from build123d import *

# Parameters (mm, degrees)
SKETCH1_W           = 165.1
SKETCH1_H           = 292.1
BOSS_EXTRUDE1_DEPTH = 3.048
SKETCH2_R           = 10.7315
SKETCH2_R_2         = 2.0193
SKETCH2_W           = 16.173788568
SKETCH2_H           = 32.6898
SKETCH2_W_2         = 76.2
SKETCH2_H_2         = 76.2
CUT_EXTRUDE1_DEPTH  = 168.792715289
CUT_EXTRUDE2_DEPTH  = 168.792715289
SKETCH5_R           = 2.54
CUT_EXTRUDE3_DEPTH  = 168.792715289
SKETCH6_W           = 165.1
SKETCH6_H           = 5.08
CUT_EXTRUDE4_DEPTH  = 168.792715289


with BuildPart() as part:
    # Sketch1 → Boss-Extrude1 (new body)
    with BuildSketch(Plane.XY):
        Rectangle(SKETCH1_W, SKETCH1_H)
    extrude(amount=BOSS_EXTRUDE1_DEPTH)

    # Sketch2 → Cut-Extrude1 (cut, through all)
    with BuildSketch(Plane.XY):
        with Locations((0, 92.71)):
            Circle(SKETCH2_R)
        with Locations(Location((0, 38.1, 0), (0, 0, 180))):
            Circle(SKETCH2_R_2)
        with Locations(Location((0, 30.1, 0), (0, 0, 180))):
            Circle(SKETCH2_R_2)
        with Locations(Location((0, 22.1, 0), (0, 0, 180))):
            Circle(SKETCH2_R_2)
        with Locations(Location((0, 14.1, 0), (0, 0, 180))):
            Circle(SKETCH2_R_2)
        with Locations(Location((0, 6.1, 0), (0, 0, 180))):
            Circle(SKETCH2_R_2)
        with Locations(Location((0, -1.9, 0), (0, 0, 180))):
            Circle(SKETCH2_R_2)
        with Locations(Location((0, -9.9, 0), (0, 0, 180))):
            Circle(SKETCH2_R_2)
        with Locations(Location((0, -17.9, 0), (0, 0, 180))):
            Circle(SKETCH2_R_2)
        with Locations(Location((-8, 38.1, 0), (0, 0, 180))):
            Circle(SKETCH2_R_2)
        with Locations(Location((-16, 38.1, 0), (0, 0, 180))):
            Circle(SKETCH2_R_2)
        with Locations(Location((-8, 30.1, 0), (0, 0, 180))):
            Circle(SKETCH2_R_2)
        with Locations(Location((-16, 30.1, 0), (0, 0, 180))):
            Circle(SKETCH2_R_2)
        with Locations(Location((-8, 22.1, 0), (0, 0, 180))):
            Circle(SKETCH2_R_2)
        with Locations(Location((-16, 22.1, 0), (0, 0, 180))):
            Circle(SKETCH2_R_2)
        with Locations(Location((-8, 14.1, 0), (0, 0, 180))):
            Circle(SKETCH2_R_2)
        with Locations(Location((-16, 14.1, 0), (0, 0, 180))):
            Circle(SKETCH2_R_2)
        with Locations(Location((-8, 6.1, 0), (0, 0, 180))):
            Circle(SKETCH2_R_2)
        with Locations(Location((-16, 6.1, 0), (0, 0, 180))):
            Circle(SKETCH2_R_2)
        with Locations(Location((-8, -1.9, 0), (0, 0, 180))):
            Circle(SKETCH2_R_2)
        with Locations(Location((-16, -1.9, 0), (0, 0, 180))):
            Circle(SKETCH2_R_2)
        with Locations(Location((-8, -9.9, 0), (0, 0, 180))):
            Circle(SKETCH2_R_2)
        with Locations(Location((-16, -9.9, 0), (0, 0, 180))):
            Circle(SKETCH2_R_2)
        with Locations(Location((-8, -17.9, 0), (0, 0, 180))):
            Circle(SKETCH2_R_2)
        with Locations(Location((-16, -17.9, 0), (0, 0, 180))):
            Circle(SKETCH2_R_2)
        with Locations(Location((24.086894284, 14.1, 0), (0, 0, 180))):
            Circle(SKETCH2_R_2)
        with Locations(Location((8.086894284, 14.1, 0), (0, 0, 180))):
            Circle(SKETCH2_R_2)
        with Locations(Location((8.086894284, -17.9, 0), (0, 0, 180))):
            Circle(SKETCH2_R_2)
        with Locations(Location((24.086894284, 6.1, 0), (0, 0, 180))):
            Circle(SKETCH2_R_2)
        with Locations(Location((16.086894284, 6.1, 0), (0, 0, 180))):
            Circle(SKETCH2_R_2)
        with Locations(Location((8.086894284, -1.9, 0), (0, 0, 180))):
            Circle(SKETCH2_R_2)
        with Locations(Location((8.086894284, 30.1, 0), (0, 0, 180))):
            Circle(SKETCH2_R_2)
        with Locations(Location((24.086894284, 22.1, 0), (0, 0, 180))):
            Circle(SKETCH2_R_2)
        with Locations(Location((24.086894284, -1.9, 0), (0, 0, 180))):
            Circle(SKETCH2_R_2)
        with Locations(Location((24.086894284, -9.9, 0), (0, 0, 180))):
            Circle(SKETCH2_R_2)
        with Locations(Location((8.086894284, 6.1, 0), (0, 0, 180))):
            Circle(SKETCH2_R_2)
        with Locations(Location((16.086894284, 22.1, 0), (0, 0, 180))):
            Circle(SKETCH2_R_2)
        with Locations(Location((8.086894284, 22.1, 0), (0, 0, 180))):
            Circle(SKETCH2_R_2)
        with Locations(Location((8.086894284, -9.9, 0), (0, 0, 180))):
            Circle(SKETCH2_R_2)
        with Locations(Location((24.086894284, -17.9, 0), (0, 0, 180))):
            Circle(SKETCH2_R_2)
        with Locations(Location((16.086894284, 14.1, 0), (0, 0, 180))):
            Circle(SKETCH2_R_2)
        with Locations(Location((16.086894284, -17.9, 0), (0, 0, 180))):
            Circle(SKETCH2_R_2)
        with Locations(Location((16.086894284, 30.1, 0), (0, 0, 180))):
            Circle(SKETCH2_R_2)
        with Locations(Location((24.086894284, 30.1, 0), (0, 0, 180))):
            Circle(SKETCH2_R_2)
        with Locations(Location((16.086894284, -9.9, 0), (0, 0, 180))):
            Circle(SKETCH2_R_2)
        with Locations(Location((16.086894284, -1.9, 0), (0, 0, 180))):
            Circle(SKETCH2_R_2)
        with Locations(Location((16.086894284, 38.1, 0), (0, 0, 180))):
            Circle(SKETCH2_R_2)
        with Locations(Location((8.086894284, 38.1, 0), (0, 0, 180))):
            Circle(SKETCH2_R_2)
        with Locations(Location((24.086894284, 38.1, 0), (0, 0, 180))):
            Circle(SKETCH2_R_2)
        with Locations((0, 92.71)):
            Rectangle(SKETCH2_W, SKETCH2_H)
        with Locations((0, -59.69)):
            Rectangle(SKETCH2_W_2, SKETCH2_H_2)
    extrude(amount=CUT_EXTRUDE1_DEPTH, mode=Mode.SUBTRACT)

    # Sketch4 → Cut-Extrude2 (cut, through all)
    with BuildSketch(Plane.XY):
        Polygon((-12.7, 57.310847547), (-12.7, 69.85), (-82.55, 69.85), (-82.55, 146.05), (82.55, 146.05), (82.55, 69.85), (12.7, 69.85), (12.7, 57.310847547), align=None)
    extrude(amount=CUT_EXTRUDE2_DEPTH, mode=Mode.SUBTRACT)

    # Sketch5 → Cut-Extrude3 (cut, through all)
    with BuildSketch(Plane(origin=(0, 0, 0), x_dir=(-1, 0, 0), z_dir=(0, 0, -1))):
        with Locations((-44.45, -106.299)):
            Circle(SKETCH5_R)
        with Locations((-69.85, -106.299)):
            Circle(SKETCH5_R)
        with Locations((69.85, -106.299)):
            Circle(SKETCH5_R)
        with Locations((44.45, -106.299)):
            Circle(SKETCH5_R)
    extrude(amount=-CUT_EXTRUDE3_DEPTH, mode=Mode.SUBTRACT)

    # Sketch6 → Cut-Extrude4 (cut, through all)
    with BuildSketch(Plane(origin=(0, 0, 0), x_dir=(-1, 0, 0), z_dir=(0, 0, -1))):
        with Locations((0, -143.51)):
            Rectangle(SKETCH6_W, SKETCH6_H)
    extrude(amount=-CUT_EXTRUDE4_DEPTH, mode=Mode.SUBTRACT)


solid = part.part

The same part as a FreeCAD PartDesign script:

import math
import FreeCAD as App
import Part
import Sketcher

V = App.Vector
Q = App.Units.Quantity

doc = App.newDocument("Part")
body = doc.addObject("PartDesign::Body", "Body")

sketch1 = body.newObject("Sketcher::SketchObject", "Sketch")
sketch1.AttachmentSupport = (doc.getObject("XY_Plane"), [""])
sketch1.MapMode = "FlatFace"
sketch1.addGeometry([
    Part.LineSegment(V(-82.55, 146.05, 0), V(-82.55, -146.05, 0)),
    Part.LineSegment(V(-82.55, -146.05, 0), V(82.55, -146.05, 0)),
    Part.LineSegment(V(82.55, -146.05, 0), V(82.55, 146.05, 0)),
    Part.LineSegment(V(82.55, 146.05, 0), V(-82.55, 146.05, 0)),
], False)
sketch1.addConstraint([
    Sketcher.Constraint("Coincident", 0, 2, 1, 1),
    Sketcher.Constraint("Coincident", 1, 2, 2, 1),
    Sketcher.Constraint("Coincident", 2, 2, 3, 1),
    Sketcher.Constraint("Coincident", 3, 2, 0, 1),
    Sketcher.Constraint("Vertical", 0),
    Sketcher.Constraint("Horizontal", 1),
    Sketcher.Constraint("Vertical", 2),
    Sketcher.Constraint("Horizontal", 3),
    Sketcher.Constraint("Symmetric", 0, 2, 2, 2, -1, 1),
    Sketcher.Constraint("DistanceX", 1, 1, 1, 2, Q("6.5 in")),
    Sketcher.Constraint("DistanceY", 0, 2, 0, 1, Q("11.5 in")),
])
pad1 = body.newObject("PartDesign::Pad", "Pad")
pad1.Profile = sketch1
pad1.Length = Q("0.12 in")

sketch2 = body.newObject("Sketcher::SketchObject", "Sketch001")
sketch2.AttachmentSupport = (doc.getObject("XY_Plane"), [""])
sketch2.MapMode = "FlatFace"
sketch2.addGeometry([
    Part.ArcOfCircle(Part.Circle(V(0, 92.71, 0), V(0, 0, 1), 10.7315), math.radians(-41.099767), math.radians(41.099767)),
    Part.LineSegment(V(8.086894, 99.76459, 0), V(8.086894, 109.0549, 0)),
    Part.LineSegment(V(8.086894, 109.0549, 0), V(-8.086894, 109.0549, 0)),
    Part.LineSegment(V(-8.086894, 109.0549, 0), V(-8.086894, 99.76459, 0)),
    Part.ArcOfCircle(Part.Circle(V(0, 92.71, 0), V(0, 0, 1), 10.7315), math.radians(138.900233), math.radians(221.099767)),
    Part.LineSegment(V(-8.086894, 85.65541, 0), V(-8.086894, 76.3651, 0)),
    Part.LineSegment(V(-8.086894, 76.3651, 0), V(8.086894, 76.3651, 0)),
    Part.LineSegment(V(8.086894, 76.3651, 0), V(8.086894, 85.65541, 0)),
    Part.Circle(V(0, 38.1, 0), V(0, 0, 1), 2.0193),
    Part.Circle(V(0, 30.1, 0), V(0, 0, 1), 2.0193),
    Part.Circle(V(0, 22.1, 0), V(0, 0, 1), 2.0193),
    Part.Circle(V(0, 14.1, 0), V(0, 0, 1), 2.0193),
    Part.Circle(V(0, 6.1, 0), V(0, 0, 1), 2.0193),
    Part.Circle(V(0, -1.9, 0), V(0, 0, 1), 2.0193),
    Part.Circle(V(0, -9.9, 0), V(0, 0, 1), 2.0193),
    Part.Circle(V(0, -17.9, 0), V(0, 0, 1), 2.0193),
    Part.Circle(V(-8, 38.1, 0), V(0, 0, 1), 2.0193),
    Part.Circle(V(-16, 38.1, 0), V(0, 0, 1), 2.0193),
    Part.Circle(V(-8, 30.1, 0), V(0, 0, 1), 2.0193),
    Part.Circle(V(-16, 30.1, 0), V(0, 0, 1), 2.0193),
    Part.Circle(V(-8, 22.1, 0), V(0, 0, 1), 2.0193),
    Part.Circle(V(-16, 22.1, 0), V(0, 0, 1), 2.0193),
    Part.Circle(V(-8, 14.1, 0), V(0, 0, 1), 2.0193),
    Part.Circle(V(-16, 14.1, 0), V(0, 0, 1), 2.0193),
    Part.Circle(V(-8, 6.1, 0), V(0, 0, 1), 2.0193),
    Part.Circle(V(-16, 6.1, 0), V(0, 0, 1), 2.0193),
    Part.Circle(V(-8, -1.9, 0), V(0, 0, 1), 2.0193),
    Part.Circle(V(-16, -1.9, 0), V(0, 0, 1), 2.0193),
    Part.Circle(V(-8, -9.9, 0), V(0, 0, 1), 2.0193),
    Part.Circle(V(-16, -9.9, 0), V(0, 0, 1), 2.0193),
    Part.Circle(V(-8, -17.9, 0), V(0, 0, 1), 2.0193),
    Part.Circle(V(-16, -17.9, 0), V(0, 0, 1), 2.0193),
    Part.Circle(V(24.086894, 14.1, 0), V(0, 0, 1), 2.0193),
    Part.Circle(V(8.086894, 14.1, 0), V(0, 0, 1), 2.0193),
    Part.Circle(V(8.086894, -17.9, 0), V(0, 0, 1), 2.0193),
    Part.Circle(V(24.086894, 6.1, 0), V(0, 0, 1), 2.0193),
    Part.Circle(V(16.086894, 6.1, 0), V(0, 0, 1), 2.0193),
    Part.Circle(V(8.086894, -1.9, 0), V(0, 0, 1), 2.0193),
    Part.Circle(V(8.086894, 30.1, 0), V(0, 0, 1), 2.0193),
    Part.Circle(V(24.086894, 22.1, 0), V(0, 0, 1), 2.0193),
    Part.Circle(V(24.086894, -1.9, 0), V(0, 0, 1), 2.0193),
    Part.Circle(V(24.086894, -9.9, 0), V(0, 0, 1), 2.0193),
    Part.Circle(V(8.086894, 6.1, 0), V(0, 0, 1), 2.0193),
    Part.Circle(V(16.086894, 22.1, 0), V(0, 0, 1), 2.0193),
    Part.Circle(V(8.086894, 22.1, 0), V(0, 0, 1), 2.0193),
    Part.Circle(V(8.086894, -9.9, 0), V(0, 0, 1), 2.0193),
    Part.Circle(V(24.086894, -17.9, 0), V(0, 0, 1), 2.0193),
    Part.Circle(V(16.086894, 14.1, 0), V(0, 0, 1), 2.0193),
    Part.Circle(V(16.086894, -17.9, 0), V(0, 0, 1), 2.0193),
    Part.Circle(V(16.086894, 30.1, 0), V(0, 0, 1), 2.0193),
    Part.Circle(V(24.086894, 30.1, 0), V(0, 0, 1), 2.0193),
    Part.Circle(V(16.086894, -9.9, 0), V(0, 0, 1), 2.0193),
    Part.Circle(V(16.086894, -1.9, 0), V(0, 0, 1), 2.0193),
    Part.Circle(V(16.086894, 38.1, 0), V(0, 0, 1), 2.0193),
    Part.Circle(V(8.086894, 38.1, 0), V(0, 0, 1), 2.0193),
    Part.Circle(V(24.086894, 38.1, 0), V(0, 0, 1), 2.0193),
    Part.LineSegment(V(-38.1, -21.59, 0), V(-38.1, -97.79, 0)),
    Part.LineSegment(V(-38.1, -97.79, 0), V(38.1, -97.79, 0)),
    Part.LineSegment(V(38.1, -97.79, 0), V(38.1, -21.59, 0)),
    Part.LineSegment(V(38.1, -21.59, 0), V(-38.1, -21.59, 0)),
], False)
sketch2.addConstraint([
    Sketcher.Constraint("Coincident", 0, 2, 1, 1),
    Sketcher.Constraint("Coincident", 1, 2, 2, 1),
    Sketcher.Constraint("Coincident", 2, 2, 3, 1),
    Sketcher.Constraint("Coincident", 3, 2, 4, 1),
    Sketcher.Constraint("Coincident", 4, 2, 5, 1),
    Sketcher.Constraint("Coincident", 5, 2, 6, 1),
    Sketcher.Constraint("Coincident", 6, 2, 7, 1),
    Sketcher.Constraint("Coincident", 7, 2, 0, 1),
    Sketcher.Constraint("Coincident", 56, 2, 57, 1),
    Sketcher.Constraint("Coincident", 57, 2, 58, 1),
    Sketcher.Constraint("Coincident", 58, 2, 59, 1),
    Sketcher.Constraint("Coincident", 59, 2, 56, 1),
    Sketcher.Constraint("Vertical", 1),
    Sketcher.Constraint("Horizontal", 2),
    Sketcher.Constraint("Vertical", 3),
    Sketcher.Constraint("Vertical", 5),
    Sketcher.Constraint("Horizontal", 6),
    Sketcher.Constraint("Vertical", 7),
    Sketcher.Constraint("Vertical", 56),
    Sketcher.Constraint("Horizontal", 57),
    Sketcher.Constraint("Vertical", 58),
    Sketcher.Constraint("Horizontal", 59),
    Sketcher.Constraint("Coincident", 4, 3, 0, 3),
    Sketcher.Constraint("Equal", 0, 4),
    Sketcher.Constraint("Equal", 8, 9),
    Sketcher.Constraint("Equal", 9, 10),
    Sketcher.Constraint("Equal", 10, 11),
    Sketcher.Constraint("Equal", 11, 12),
    Sketcher.Constraint("Equal", 12, 13),
    Sketcher.Constraint("Equal", 13, 14),
    Sketcher.Constraint("Equal", 14, 15),
    Sketcher.Constraint("Equal", 15, 16),
    Sketcher.Constraint("Equal", 16, 17),
    Sketcher.Constraint("Equal", 17, 18),
    Sketcher.Constraint("Equal", 18, 19),
    Sketcher.Constraint("Equal", 19, 20),
    Sketcher.Constraint("Equal", 20, 21),
    Sketcher.Constraint("Equal", 21, 22),
    Sketcher.Constraint("Equal", 22, 23),
    Sketcher.Constraint("Equal", 23, 24),
    Sketcher.Constraint("Equal", 24, 25),
    Sketcher.Constraint("Equal", 25, 26),
    Sketcher.Constraint("Equal", 26, 27),
    Sketcher.Constraint("Equal", 27, 28),
    Sketcher.Constraint("Equal", 28, 29),
    Sketcher.Constraint("Equal", 29, 30),
    Sketcher.Constraint("Equal", 30, 31),
    Sketcher.Constraint("Equal", 31, 32),
    Sketcher.Constraint("Equal", 32, 33),
    Sketcher.Constraint("Equal", 33, 34),
    Sketcher.Constraint("Equal", 34, 35),
    Sketcher.Constraint("Equal", 35, 36),
    Sketcher.Constraint("Equal", 36, 37),
    Sketcher.Constraint("Equal", 37, 38),
    Sketcher.Constraint("Equal", 38, 39),
    Sketcher.Constraint("Equal", 39, 40),
    Sketcher.Constraint("Equal", 40, 41),
    Sketcher.Constraint("Equal", 41, 42),
    Sketcher.Constraint("Equal", 42, 43),
    Sketcher.Constraint("Equal", 43, 44),
    Sketcher.Constraint("Equal", 44, 45),
    Sketcher.Constraint("Equal", 45, 46),
    Sketcher.Constraint("Equal", 46, 47),
    Sketcher.Constraint("Equal", 47, 48),
    Sketcher.Constraint("Equal", 48, 49),
    Sketcher.Constraint("Equal", 49, 50),
    Sketcher.Constraint("Equal", 50, 51),
    Sketcher.Constraint("Equal", 51, 52),
    Sketcher.Constraint("Equal", 52, 53),
    Sketcher.Constraint("Equal", 53, 54),
    Sketcher.Constraint("Equal", 54, 55),
    Sketcher.Constraint("Symmetric", 0, 2, 3, 2, -2),
    Sketcher.Constraint("PointOnObject", 8, 3, -2),
    Sketcher.Constraint("PointOnObject", 9, 3, -2),
    Sketcher.Constraint("PointOnObject", 10, 3, -2),
    Sketcher.Constraint("PointOnObject", 11, 3, -2),
    Sketcher.Constraint("PointOnObject", 12, 3, -2),
    Sketcher.Constraint("PointOnObject", 13, 3, -2),
    Sketcher.Constraint("PointOnObject", 14, 3, -2),
    Sketcher.Constraint("PointOnObject", 15, 3, -2),
    Sketcher.Constraint("Horizontal", 8, 3, 16, 3),
    Sketcher.Constraint("Horizontal", 16, 3, 17, 3),
    Sketcher.Constraint("Horizontal", 9, 3, 18, 3),
    Sketcher.Constraint("Horizontal", 18, 3, 19, 3),
    Sketcher.Constraint("Horizontal", 10, 3, 20, 3),
    Sketcher.Constraint("Horizontal", 20, 3, 21, 3),
    Sketcher.Constraint("Horizontal", 11, 3, 22, 3),
    Sketcher.Constraint("Horizontal", 22, 3, 23, 3),
    Sketcher.Constraint("Horizontal", 12, 3, 24, 3),
    Sketcher.Constraint("Horizontal", 24, 3, 25, 3),
    Sketcher.Constraint("Horizontal", 13, 3, 26, 3),
    Sketcher.Constraint("Horizontal", 26, 3, 27, 3),
    Sketcher.Constraint("Horizontal", 14, 3, 28, 3),
    Sketcher.Constraint("Horizontal", 28, 3, 29, 3),
    Sketcher.Constraint("Horizontal", 15, 3, 30, 3),
    Sketcher.Constraint("Horizontal", 30, 3, 31, 3),
    Sketcher.Constraint("Horizontal", 23, 3, 32, 3),
    Sketcher.Constraint("Horizontal", 32, 3, 33, 3),
    Sketcher.Constraint("Horizontal", 31, 3, 34, 3),
    Sketcher.Constraint("Horizontal", 25, 3, 35, 3),
    Sketcher.Constraint("Horizontal", 35, 3, 36, 3),
    Sketcher.Constraint("Horizontal", 27, 3, 37, 3),
    Sketcher.Constraint("Horizontal", 19, 3, 38, 3),
    Sketcher.Constraint("Horizontal", 21, 3, 39, 3),
    Sketcher.Constraint("Horizontal", 37, 3, 40, 3),
    Sketcher.Constraint("Horizontal", 29, 3, 41, 3),
    Sketcher.Constraint("Horizontal", 36, 3, 42, 3),
    Sketcher.Constraint("Horizontal", 39, 3, 43, 3),
    Sketcher.Constraint("Horizontal", 43, 3, 44, 3),
    Sketcher.Constraint("Horizontal", 41, 3, 45, 3),
    Sketcher.Constraint("Horizontal", 34, 3, 46, 3),
    Sketcher.Constraint("Horizontal", 33, 3, 47, 3),
    Sketcher.Constraint("Horizontal", 46, 3, 48, 3),
    Sketcher.Constraint("Horizontal", 38, 3, 49, 3),
    Sketcher.Constraint("Horizontal", 49, 3, 50, 3),
    Sketcher.Constraint("Horizontal", 45, 3, 51, 3),
    Sketcher.Constraint("Horizontal", 40, 3, 52, 3),
    Sketcher.Constraint("Horizontal", 17, 3, 53, 3),
    Sketcher.Constraint("Horizontal", 53, 3, 54, 3),
    Sketcher.Constraint("Horizontal", 54, 3, 55, 3),
    Sketcher.Constraint("Horizontal", 4, 2, 7, 2),
    Sketcher.Constraint("Vertical", 16, 3, 18, 3),
    Sketcher.Constraint("Vertical", 17, 3, 19, 3),
    Sketcher.Constraint("Vertical", 18, 3, 20, 3),
    Sketcher.Constraint("Vertical", 19, 3, 21, 3),
    Sketcher.Constraint("Vertical", 20, 3, 22, 3),
    Sketcher.Constraint("Vertical", 21, 3, 23, 3),
    Sketcher.Constraint("Vertical", 22, 3, 24, 3),
    Sketcher.Constraint("Vertical", 23, 3, 25, 3),
    Sketcher.Constraint("Vertical", 24, 3, 26, 3),
    Sketcher.Constraint("Vertical", 25, 3, 27, 3),
    Sketcher.Constraint("Vertical", 26, 3, 28, 3),
    Sketcher.Constraint("Vertical", 27, 3, 29, 3),
    Sketcher.Constraint("Vertical", 28, 3, 30, 3),
    Sketcher.Constraint("Vertical", 29, 3, 31, 3),
    Sketcher.Constraint("Vertical", 33, 3, 34, 3),
    Sketcher.Constraint("Vertical", 32, 3, 35, 3),
    Sketcher.Constraint("Vertical", 34, 3, 37, 3),
    Sketcher.Constraint("Vertical", 37, 3, 38, 3),
    Sketcher.Constraint("Vertical", 35, 3, 39, 3),
    Sketcher.Constraint("Vertical", 39, 3, 40, 3),
    Sketcher.Constraint("Vertical", 40, 3, 41, 3),
    Sketcher.Constraint("Vertical", 38, 3, 42, 3),
    Sketcher.Constraint("Vertical", 36, 3, 43, 3),
    Sketcher.Constraint("Vertical", 42, 3, 44, 3),
    Sketcher.Constraint("Vertical", 44, 3, 45, 3),
    Sketcher.Constraint("Vertical", 41, 3, 46, 3),
    Sketcher.Constraint("Vertical", 43, 3, 47, 3),
    Sketcher.Constraint("Vertical", 47, 3, 48, 3),
    Sketcher.Constraint("Vertical", 48, 3, 49, 3),
    Sketcher.Constraint("Vertical", 46, 3, 50, 3),
    Sketcher.Constraint("Vertical", 49, 3, 51, 3),
    Sketcher.Constraint("Vertical", 51, 3, 52, 3),
    Sketcher.Constraint("Vertical", 52, 3, 53, 3),
    Sketcher.Constraint("Vertical", 45, 3, 54, 3),
    Sketcher.Constraint("Vertical", 50, 3, 55, 3),
    Sketcher.Constraint("Vertical", 54, 3, 0, 2),
    Sketcher.Constraint("Vertical", 3, 2, 4, 2),
    Sketcher.Constraint("Equal", 3, 5),
    Sketcher.Constraint("Equal", 59, 56),
    Sketcher.Constraint("DistanceX", 57, 1, 57, 2, Q("3 in")),
    Sketcher.Constraint("Diameter", 8, Q("0.159 in")),
    Sketcher.Constraint("DistanceY", -1, 1, 8, 3, Q("1.5 in")),
    Sketcher.Constraint("DistanceX", 56, 2, -1, 1, Q("1.5 in")),
    Sketcher.Constraint("Radius", 0, Q("0.4225 in")),
    Sketcher.Constraint("DistanceY", -1, 1, 0, 3, Q("3.65 in")),
    Sketcher.Constraint("DistanceY", 56, 2, -1, 1, Q("3.85 in")),
    Sketcher.Constraint("DistanceY", -1, 1, 1, 2, Q("4.2935 in")),
    Sketcher.Constraint("DistanceX", 2, 2, 2, 1, 16.173789),
    Sketcher.Constraint("DistanceY", -1, 1, 9, 3, 30.1),
    Sketcher.Constraint("DistanceY", -1, 1, 10, 3, 22.1),
    Sketcher.Constraint("DistanceY", -1, 1, 11, 3, 14.1),
    Sketcher.Constraint("DistanceY", -1, 1, 12, 3, 6.1),
    Sketcher.Constraint("DistanceY", 13, 3, -1, 1, 1.9),
    Sketcher.Constraint("DistanceY", 14, 3, -1, 1, 9.9),
    Sketcher.Constraint("DistanceY", 15, 3, -1, 1, 17.9),
    Sketcher.Constraint("DistanceX", 16, 3, -1, 1, 8.0),
    Sketcher.Constraint("DistanceX", 17, 3, -1, 1, 16.0),
    Sketcher.Constraint("DistanceX", -1, 1, 32, 3, 24.086894),
    Sketcher.Constraint("DistanceX", -1, 1, 36, 3, 16.086894),
])
pocket1 = body.newObject("PartDesign::Pocket", "Pocket")
pocket1.Profile = sketch2
pocket1.Type = "ThroughAll"
pocket1.Reversed = True

sketch3 = body.newObject("Sketcher::SketchObject", "Sketch002")
sketch3.AttachmentSupport = (doc.getObject("XY_Plane"), [""])
sketch3.MapMode = "FlatFace"
sketch3.addGeometry([
    Part.LineSegment(V(-12.7, 69.85, 0), V(-12.7, 57.310848, 0)),
    Part.LineSegment(V(-12.7, 57.310848, 0), V(12.7, 57.310848, 0)),
    Part.LineSegment(V(12.7, 57.310848, 0), V(12.7, 69.85, 0)),
    Part.LineSegment(V(12.7, 69.85, 0), V(82.55, 69.85, 0)),
    Part.LineSegment(V(82.55, 69.85, 0), V(82.55, 146.05, 0)),
    Part.LineSegment(V(82.55, 146.05, 0), V(-82.55, 146.05, 0)),
    Part.LineSegment(V(-82.55, 146.05, 0), V(-82.55, 69.85, 0)),
    Part.LineSegment(V(-82.55, 69.85, 0), V(-12.7, 69.85, 0)),
], False)
sketch3.addConstraint([
    Sketcher.Constraint("Coincident", 0, 2, 1, 1),
    Sketcher.Constraint("Coincident", 1, 2, 2, 1),
    Sketcher.Constraint("Coincident", 2, 2, 3, 1),
    Sketcher.Constraint("Coincident", 3, 2, 4, 1),
    Sketcher.Constraint("Coincident", 4, 2, 5, 1),
    Sketcher.Constraint("Coincident", 5, 2, 6, 1),
    Sketcher.Constraint("Coincident", 6, 2, 7, 1),
    Sketcher.Constraint("Coincident", 7, 2, 0, 1),
    Sketcher.Constraint("Vertical", 0),
    Sketcher.Constraint("Horizontal", 1),
    Sketcher.Constraint("Vertical", 2),
    Sketcher.Constraint("Horizontal", 3),
    Sketcher.Constraint("Vertical", 4),
    Sketcher.Constraint("Horizontal", 5),
    Sketcher.Constraint("Vertical", 6),
    Sketcher.Constraint("Horizontal", 7),
    Sketcher.Constraint("Symmetric", 3, 2, 6, 2, -2),
    Sketcher.Constraint("Equal", 3, 7),
    Sketcher.Constraint("DistanceX", 1, 1, 1, 2, Q("1 in")),
    Sketcher.Constraint("DistanceY", 4, 1, 4, 2, Q("3 in")),
    Sketcher.Constraint("DistanceX", 5, 2, 5, 1, Q("6.5 in")),
    Sketcher.Constraint("DistanceY", -1, 1, 2, 2, Q("2.75 in")),
    Sketcher.Constraint("DistanceY", 0, 2, 0, 1, 12.539152),
])
pocket2 = body.newObject("PartDesign::Pocket", "Pocket001")
pocket2.Profile = sketch3
pocket2.Type = "ThroughAll"
pocket2.Reversed = True

sketch4 = body.newObject("Sketcher::SketchObject", "Sketch003")
sketch4.AttachmentSupport = (doc.getObject("XY_Plane"), [""])
sketch4.MapMode = "FlatFace"
sketch4.addGeometry([
    Part.Circle(V(44.45, -106.299, 0), V(0, 0, 1), 2.54),
    Part.Circle(V(69.85, -106.299, 0), V(0, 0, 1), 2.54),
    Part.Circle(V(-69.85, -106.299, 0), V(0, 0, 1), 2.54),
    Part.Circle(V(-44.45, -106.299, 0), V(0, 0, 1), 2.54),
], False)
sketch4.addConstraint([
    Sketcher.Constraint("Equal", 0, 1),
    Sketcher.Constraint("Equal", 1, 2),
    Sketcher.Constraint("Equal", 2, 3),
    Sketcher.Constraint("Symmetric", 1, 3, 2, 3, -2),
    Sketcher.Constraint("Symmetric", 0, 3, 3, 3, -2),
    Sketcher.Constraint("Horizontal", 0, 3, 1, 3),
    Sketcher.Constraint("Diameter", 0, Q("0.2 in")),
    Sketcher.Constraint("DistanceX", 0, 3, 1, 3, Q("1 in")),
    Sketcher.Constraint("DistanceX", 2, 3, 0, 3, Q("4.5 in")),
    Sketcher.Constraint("DistanceY", 0, 3, -1, 1, Q("4.185 in")),
])
pocket3 = body.newObject("PartDesign::Pocket", "Pocket002")
pocket3.Profile = sketch4
pocket3.Type = "ThroughAll"
pocket3.Reversed = True

sketch5 = body.newObject("Sketcher::SketchObject", "Sketch004")
sketch5.AttachmentSupport = (doc.getObject("XY_Plane"), [""])
sketch5.MapMode = "FlatFace"
sketch5.addGeometry([
    Part.LineSegment(V(82.55, -140.97, 0), V(82.55, -146.05, 0)),
    Part.LineSegment(V(82.55, -146.05, 0), V(-82.55, -146.05, 0)),
    Part.LineSegment(V(-82.55, -146.05, 0), V(-82.55, -140.97, 0)),
    Part.LineSegment(V(-82.55, -140.97, 0), V(82.55, -140.97, 0)),
], False)
sketch5.addConstraint([
    Sketcher.Constraint("Coincident", 0, 2, 1, 1),
    Sketcher.Constraint("Coincident", 1, 2, 2, 1),
    Sketcher.Constraint("Coincident", 2, 2, 3, 1),
    Sketcher.Constraint("Coincident", 3, 2, 0, 1),
    Sketcher.Constraint("Vertical", 0),
    Sketcher.Constraint("Horizontal", 1),
    Sketcher.Constraint("Vertical", 2),
    Sketcher.Constraint("Horizontal", 3),
    Sketcher.Constraint("DistanceX", 1, 2, 1, 1, Q("6.5 in")),
    Sketcher.Constraint("DistanceY", 0, 2, 0, 1, Q("0.2 in")),
    Sketcher.Constraint("DistanceX", -1, 1, 0, 2, Q("3.25 in")),
    Sketcher.Constraint("DistanceY", 0, 2, -1, 1, Q("5.75 in")),
])
pocket4 = body.newObject("PartDesign::Pocket", "Pocket003")
pocket4.Profile = sketch5
pocket4.Type = "ThroughAll"
pocket4.Reversed = True

doc.recompute()
